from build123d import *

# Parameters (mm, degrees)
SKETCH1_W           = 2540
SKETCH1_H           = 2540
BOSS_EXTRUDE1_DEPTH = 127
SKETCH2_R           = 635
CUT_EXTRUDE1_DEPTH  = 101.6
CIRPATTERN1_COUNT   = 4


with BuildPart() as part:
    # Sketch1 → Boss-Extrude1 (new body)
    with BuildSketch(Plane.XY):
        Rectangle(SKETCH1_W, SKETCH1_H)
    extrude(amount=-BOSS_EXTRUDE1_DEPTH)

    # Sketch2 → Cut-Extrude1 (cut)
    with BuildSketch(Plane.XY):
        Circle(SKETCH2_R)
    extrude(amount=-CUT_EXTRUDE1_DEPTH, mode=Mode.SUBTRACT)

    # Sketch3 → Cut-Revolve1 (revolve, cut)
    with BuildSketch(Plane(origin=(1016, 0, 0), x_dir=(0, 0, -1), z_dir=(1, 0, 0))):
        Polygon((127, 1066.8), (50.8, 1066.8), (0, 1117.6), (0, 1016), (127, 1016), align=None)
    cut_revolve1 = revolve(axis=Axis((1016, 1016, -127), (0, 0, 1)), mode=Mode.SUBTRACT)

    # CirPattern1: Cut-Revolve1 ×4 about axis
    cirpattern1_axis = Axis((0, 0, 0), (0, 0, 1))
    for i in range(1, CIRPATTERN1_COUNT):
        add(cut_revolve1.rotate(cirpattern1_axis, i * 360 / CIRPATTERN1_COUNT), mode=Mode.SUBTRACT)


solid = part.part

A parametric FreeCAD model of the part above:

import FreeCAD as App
import Part
import Sketcher
Q = App.Units.Quantity

doc = App.newDocument("Part")
body = doc.addObject("PartDesign::Body", "Body")

# Sketch on XY plane
sketch1 = doc.addObject("Sketcher::SketchObject", "Sketch")
body.addObject(sketch1)
sketch1.AttachmentSupport = (doc.XY_Plane, [""])
sketch1.MapMode = "FlatFace"
sketch1.addGeometry([
    Part.LineSegment(App.Vector(-1270, 1270, 0), App.Vector(-1270, -1270, 0)),
    Part.LineSegment(App.Vector(-1270, -1270, 0), App.Vector(1270, -1270, 0)),
    Part.LineSegment(App.Vector(1270, -1270, 0), App.Vector(1270, 1270, 0)),
    Part.LineSegment(App.Vector(1270, 1270, 0), App.Vector(-1270, 1270, 0)),
], False)
sketch1.addConstraint([
    Sketcher.Constraint("Coincident", 0, 2, 1, 1),
    Sketcher.Constraint("Coincident", 1, 2, 2, 1),
    Sketcher.Constraint("Coincident", 2, 2, 3, 1),
    Sketcher.Constraint("Coincident", 3, 2, 0, 1),
    Sketcher.Constraint("Vertical", 0),
    Sketcher.Constraint("Horizontal", 1),
    Sketcher.Constraint("Vertical", 2),
    Sketcher.Constraint("Horizontal", 3),
    Sketcher.Constraint("Symmetric", 0, 2, 2, 2, -1, 1),
    Sketcher.Constraint("Equal", 3, 0),
    Sketcher.Constraint("DistanceX", 1, 1, 1, 2, Q("100 in")),
])
pad1 = doc.addObject("PartDesign::Pad", "Pad")
body.addObject(pad1)
pad1.Profile = sketch1
pad1.Length = Q("5 in")
pad1.Reversed = True

# Sketch on XY plane
sketch2 = doc.addObject("Sketcher::SketchObject", "Sketch001")
body.addObject(sketch2)
sketch2.AttachmentSupport = (doc.XY_Plane, [""])
sketch2.MapMode = "FlatFace"
sketch2.addGeometry(Part.Circle(App.Vector(0, 0, 0), App.Vector(0, 0, 1), 635), False)
sketch2.addConstraint([
    Sketcher.Constraint("Coincident", 0, 3, -1, 1),
    Sketcher.Constraint("Diameter", 0, Q("50 in")),
])
pocket1 = doc.addObject("PartDesign::Pocket", "Pocket")
body.addObject(pocket1)
pocket1.Profile = sketch2
pocket1.Length = Q("4 in")

# Sketch on YZ plane
sketch3 = doc.addObject("Sketcher::SketchObject", "Sketch002")
body.addObject(sketch3)
sketch3.AttachmentSupport = (doc.YZ_Plane, [""])
sketch3.MapMode = "FlatFace"
sketch3.AttachmentOffset = App.Placement(App.Vector(0, 0, 40 * 25.4), App.Rotation())
sketch3.addGeometry([
    Part.LineSegment(App.Vector(1067, -127, 0), App.Vector(1067, -51, 0)),  # 0
    Part.LineSegment(App.Vector(1067, -51, 0), App.Vector(1118, 0, 0)),  # 1
    Part.LineSegment(App.Vector(1118, 0, 0), App.Vector(1016, 0, 0)),  # 2
    Part.LineSegment(App.Vector(1016, 0, 0), App.Vector(1016, -127, 0)),  # 3
    Part.LineSegment(App.Vector(1016, -127, 0), App.Vector(1067, -127, 0)),  # 4
], False)
sketch3.addGeometry(Part.LineSegment(App.Vector(1016, -127, 0), App.Vector(1016, 0, 0)), True)  # axis
sketch3.addConstraint([
    Sketcher.Constraint("Coincident", 0, 2, 1, 1),
    Sketcher.Constraint("Coincident", 1, 2, 2, 1),
    Sketcher.Constraint("Coincident", 2, 2, 3, 1),
    Sketcher.Constraint("Coincident", 3, 2, 4, 1),
    Sketcher.Constraint("Coincident", 4, 2, 0, 1),
    Sketcher.Constraint("Vertical", 0),
    Sketcher.Constraint("Horizontal", 2),
    Sketcher.Constraint("Vertical", 3),
    Sketcher.Constraint("Horizontal", 4),
    Sketcher.Constraint("Vertical", 5),
    Sketcher.Constraint("Coincident", 5, 1, 3, 2),
    Sketcher.Constraint("PointOnObject", 1, 2, -1),
    Sketcher.Constraint("PointOnObject", 5, 2, -1),
    Sketcher.Constraint("DistanceX", 2, 2, 2, 1, Q("4 in")),
    Sketcher.Constraint("DistanceX", 4, 1, 4, 2, Q("2 in")),
    Sketcher.Constraint("DistanceY", 0, 1, 0, 2, Q("3 in")),
    Sketcher.Constraint("DistanceY", 3, 2, 3, 1, Q("5 in")),
    Sketcher.Constraint("DistanceX", -1, 1, 0, 2, Q("42 in")),
])
groove = doc.addObject("PartDesign::Groove", "Groove")
body.addObject(groove)
groove.Profile = sketch3
groove.ReferenceAxis = (sketch3, ["Axis0"])
groove.Angle = 360
doc.recompute()

polarpattern = doc.addObject("PartDesign::PolarPattern", "PolarPattern")
body.addObject(polarpattern)
polarpattern.Originals = [groove]
polarpattern.Axis = (doc.Z_Axis, [""])
polarpattern.Angle = 360
polarpattern.Occurrences = 4
body.Tip = polarpattern

doc.recompute()
